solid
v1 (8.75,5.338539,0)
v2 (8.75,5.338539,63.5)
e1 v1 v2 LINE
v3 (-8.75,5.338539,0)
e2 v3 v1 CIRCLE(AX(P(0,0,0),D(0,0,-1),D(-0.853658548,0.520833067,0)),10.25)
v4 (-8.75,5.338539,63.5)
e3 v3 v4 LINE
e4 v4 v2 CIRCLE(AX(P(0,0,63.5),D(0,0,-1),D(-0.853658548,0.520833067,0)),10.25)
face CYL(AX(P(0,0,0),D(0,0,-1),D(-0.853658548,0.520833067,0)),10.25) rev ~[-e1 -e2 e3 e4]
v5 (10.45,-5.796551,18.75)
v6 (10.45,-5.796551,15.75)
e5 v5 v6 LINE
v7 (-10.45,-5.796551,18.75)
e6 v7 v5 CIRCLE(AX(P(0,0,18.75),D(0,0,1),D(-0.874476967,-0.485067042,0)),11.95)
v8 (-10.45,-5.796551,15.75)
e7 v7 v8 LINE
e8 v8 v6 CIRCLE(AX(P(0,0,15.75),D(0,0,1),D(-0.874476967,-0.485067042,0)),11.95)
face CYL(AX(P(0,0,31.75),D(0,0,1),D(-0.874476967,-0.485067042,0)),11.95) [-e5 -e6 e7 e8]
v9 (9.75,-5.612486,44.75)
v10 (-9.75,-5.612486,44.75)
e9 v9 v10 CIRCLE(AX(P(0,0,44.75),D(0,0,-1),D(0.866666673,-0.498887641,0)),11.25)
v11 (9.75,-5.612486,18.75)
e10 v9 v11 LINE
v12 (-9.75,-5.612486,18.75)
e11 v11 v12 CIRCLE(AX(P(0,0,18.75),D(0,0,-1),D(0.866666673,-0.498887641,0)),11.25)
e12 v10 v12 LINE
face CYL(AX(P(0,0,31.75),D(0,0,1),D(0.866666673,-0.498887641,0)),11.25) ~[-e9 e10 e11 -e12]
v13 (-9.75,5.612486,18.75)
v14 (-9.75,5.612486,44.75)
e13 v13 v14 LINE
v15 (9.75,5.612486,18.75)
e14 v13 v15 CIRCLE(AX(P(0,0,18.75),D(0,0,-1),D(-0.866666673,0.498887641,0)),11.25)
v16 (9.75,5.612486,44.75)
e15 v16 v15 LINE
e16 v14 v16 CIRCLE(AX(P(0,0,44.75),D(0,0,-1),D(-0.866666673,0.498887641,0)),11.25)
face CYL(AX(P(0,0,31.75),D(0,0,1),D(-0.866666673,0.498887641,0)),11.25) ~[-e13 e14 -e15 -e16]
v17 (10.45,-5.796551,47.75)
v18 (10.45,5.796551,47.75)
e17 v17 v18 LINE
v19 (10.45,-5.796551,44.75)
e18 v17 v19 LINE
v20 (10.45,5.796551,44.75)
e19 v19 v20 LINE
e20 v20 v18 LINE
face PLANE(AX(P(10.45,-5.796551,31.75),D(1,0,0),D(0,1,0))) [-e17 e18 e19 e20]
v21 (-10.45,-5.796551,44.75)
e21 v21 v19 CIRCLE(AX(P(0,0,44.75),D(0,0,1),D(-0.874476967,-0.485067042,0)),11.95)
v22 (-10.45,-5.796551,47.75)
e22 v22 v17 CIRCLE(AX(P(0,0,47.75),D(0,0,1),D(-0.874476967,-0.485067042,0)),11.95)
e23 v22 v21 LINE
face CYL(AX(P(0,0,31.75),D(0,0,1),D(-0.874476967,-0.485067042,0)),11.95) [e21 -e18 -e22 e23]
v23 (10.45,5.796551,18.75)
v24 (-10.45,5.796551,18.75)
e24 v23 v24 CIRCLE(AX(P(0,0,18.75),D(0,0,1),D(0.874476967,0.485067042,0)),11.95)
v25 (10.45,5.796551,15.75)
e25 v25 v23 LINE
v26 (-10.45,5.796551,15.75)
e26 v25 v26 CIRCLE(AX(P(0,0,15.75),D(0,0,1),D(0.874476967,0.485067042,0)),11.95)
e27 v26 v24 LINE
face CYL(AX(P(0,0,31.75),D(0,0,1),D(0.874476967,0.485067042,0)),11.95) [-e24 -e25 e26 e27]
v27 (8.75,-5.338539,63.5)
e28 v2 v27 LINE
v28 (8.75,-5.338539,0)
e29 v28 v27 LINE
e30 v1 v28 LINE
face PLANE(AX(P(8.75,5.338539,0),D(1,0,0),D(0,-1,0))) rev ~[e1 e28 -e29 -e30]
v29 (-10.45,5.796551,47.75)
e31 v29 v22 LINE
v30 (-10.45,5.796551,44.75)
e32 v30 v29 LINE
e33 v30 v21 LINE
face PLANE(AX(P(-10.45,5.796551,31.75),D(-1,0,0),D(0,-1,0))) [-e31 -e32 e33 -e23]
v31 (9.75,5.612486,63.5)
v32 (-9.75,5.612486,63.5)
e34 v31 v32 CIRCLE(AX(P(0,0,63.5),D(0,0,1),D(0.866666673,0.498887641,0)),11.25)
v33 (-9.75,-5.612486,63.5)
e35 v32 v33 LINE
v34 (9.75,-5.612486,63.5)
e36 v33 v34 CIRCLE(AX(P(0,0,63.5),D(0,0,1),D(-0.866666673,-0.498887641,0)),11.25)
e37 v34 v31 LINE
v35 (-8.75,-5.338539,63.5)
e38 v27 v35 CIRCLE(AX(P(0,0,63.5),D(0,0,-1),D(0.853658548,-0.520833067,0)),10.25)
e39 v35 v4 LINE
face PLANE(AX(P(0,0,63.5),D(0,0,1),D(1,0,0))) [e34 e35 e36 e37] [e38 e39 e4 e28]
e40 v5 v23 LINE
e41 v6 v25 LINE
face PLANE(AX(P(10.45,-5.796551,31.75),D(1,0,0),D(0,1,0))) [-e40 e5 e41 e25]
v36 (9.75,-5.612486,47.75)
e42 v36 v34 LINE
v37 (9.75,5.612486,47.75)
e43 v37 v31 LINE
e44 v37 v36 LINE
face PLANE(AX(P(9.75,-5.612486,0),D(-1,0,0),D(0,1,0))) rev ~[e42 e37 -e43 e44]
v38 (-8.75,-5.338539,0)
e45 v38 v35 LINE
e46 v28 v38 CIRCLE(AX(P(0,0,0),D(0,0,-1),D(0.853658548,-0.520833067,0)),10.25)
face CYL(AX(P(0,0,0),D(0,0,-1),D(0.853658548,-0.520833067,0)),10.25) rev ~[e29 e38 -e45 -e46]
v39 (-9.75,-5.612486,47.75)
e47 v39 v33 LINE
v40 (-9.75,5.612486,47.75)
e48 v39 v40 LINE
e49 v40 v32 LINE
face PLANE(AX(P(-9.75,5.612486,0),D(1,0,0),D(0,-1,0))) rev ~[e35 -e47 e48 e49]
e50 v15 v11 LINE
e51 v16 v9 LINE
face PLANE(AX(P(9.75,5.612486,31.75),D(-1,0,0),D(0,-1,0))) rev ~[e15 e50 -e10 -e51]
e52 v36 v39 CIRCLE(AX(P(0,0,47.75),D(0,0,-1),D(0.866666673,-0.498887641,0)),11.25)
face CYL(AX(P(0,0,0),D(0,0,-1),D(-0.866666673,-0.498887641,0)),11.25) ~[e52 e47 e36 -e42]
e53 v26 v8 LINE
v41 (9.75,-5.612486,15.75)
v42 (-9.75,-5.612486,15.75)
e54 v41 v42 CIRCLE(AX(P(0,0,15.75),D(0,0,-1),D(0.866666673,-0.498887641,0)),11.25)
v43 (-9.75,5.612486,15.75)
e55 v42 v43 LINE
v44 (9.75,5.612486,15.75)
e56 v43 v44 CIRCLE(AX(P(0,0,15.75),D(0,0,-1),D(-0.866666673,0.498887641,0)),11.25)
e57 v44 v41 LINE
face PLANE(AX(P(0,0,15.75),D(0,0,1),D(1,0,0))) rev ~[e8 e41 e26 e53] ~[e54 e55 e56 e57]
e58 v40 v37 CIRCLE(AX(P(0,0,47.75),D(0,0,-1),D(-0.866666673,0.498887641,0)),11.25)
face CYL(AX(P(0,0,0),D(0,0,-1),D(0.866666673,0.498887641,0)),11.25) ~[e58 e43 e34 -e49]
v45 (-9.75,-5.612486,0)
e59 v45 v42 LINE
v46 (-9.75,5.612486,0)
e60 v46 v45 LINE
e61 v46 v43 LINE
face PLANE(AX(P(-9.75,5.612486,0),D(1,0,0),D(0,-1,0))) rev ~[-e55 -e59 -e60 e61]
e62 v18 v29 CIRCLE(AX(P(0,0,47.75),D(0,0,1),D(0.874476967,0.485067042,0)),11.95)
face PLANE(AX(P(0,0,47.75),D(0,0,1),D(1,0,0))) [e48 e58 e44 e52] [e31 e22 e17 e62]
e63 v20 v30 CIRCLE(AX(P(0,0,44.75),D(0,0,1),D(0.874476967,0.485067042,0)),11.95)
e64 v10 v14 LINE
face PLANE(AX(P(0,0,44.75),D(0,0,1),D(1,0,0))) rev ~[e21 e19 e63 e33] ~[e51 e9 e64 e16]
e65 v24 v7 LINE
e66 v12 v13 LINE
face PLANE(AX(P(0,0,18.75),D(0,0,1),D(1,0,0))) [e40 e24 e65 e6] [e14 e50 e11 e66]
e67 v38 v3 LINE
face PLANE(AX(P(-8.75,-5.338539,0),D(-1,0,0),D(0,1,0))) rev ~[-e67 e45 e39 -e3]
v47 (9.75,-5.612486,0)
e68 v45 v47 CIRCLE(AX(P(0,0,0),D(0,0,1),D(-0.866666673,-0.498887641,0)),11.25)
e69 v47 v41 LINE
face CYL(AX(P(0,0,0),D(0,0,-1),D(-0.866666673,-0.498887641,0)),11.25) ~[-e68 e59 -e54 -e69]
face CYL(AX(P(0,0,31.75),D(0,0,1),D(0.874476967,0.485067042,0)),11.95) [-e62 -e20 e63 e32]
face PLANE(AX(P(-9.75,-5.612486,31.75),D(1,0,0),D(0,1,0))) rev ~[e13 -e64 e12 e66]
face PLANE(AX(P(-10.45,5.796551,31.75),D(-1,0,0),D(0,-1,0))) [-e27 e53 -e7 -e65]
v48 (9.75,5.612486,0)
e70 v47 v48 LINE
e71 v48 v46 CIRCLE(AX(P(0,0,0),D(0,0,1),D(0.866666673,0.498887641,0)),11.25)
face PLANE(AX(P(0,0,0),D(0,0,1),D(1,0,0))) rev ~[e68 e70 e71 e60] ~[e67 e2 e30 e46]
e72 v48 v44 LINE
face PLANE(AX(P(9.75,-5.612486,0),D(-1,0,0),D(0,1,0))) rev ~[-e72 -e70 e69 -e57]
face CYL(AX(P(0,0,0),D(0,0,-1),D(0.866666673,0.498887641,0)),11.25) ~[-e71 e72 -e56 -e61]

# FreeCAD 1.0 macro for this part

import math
import FreeCAD as App
import Part
import Sketcher

doc = App.newDocument("Part")
body = doc.addObject("PartDesign::Body", "Body")

# Sketch on XY plane
sketch1 = body.newObject("Sketcher::SketchObject", "Sketch")
sketch1.AttachmentSupport = (doc.getObject("XY_Plane"), [""])
sketch1.MapMode = "FlatFace"
sketch1.addGeometry([
    Part.LineSegment(App.Vector(-10, 6, 0), App.Vector(-10, -6, 0)),  # 0
    Part.ArcOfCircle(Part.Circle(App.Vector(0, 0, 0), App.Vector(0, 0, 1), 11), math.radians(-150), math.radians(-30)),  # 1
    Part.LineSegment(App.Vector(10, -6, 0), App.Vector(10, 6, 0)),  # 2
    Part.ArcOfCircle(Part.Circle(App.Vector(0, 0, 0), App.Vector(0, 0, 1), 11), math.radians(30), math.radians(150)),  # 3
    Part.LineSegment(App.Vector(9, 5, 0), App.Vector(9, -5, 0)),  # 4
    Part.ArcOfCircle(Part.Circle(App.Vector(0, 0, 0), App.Vector(0, 0, 1), 10), math.radians(-149), math.radians(-31)),  # 5
    Part.LineSegment(App.Vector(-9, -5, 0), App.Vector(-9, 5, 0)),  # 6
    Part.ArcOfCircle(Part.Circle(App.Vector(0, 0, 0), App.Vector(0, 0, 1), 10), math.radians(31), math.radians(149)),  # 7
], False)
sketch1.addConstraint([
    Sketcher.Constraint("Coincident", 0, 2, 1, 1),
    Sketcher.Constraint("Coincident", 1, 2, 2, 1),
    Sketcher.Constraint("Coincident", 2, 2, 3, 1),
    Sketcher.Constraint("Coincident", 3, 2, 0, 1),
    Sketcher.Constraint("Coincident", 4, 2, 5, 2),
    Sketcher.Constraint("Coincident", 5, 1, 6, 1),
    Sketcher.Constraint("Coincident", 6, 2, 7, 2),
    Sketcher.Constraint("Coincident", 7, 1, 4, 1),
    Sketcher.Constraint("Vertical", 0),
    Sketcher.Constraint("Vertical", 2),
    Sketcher.Constraint("Vertical", 4),
    Sketcher.Constraint("Vertical", 6),
    Sketcher.Constraint("Coincident", 1, 3, -1, 1),
    Sketcher.Constraint("Coincident", 3, 3, -1, 1),
    Sketcher.Constraint("Coincident", 5, 3, -1, 1),
    Sketcher.Constraint("Coincident", 7, 3, -1, 1),
    Sketcher.Constraint("Equal", 1, 3),
    Sketcher.Constraint("Equal", 5, 7),
    Sketcher.Constraint("Horizontal", 0, 2, 1, 2),
    Sketcher.Constraint("Horizontal", 4, 2, 5, 1),
    Sketcher.Constraint("Radius", 1, 11.25),
    Sketcher.Constraint("Radius", 5, 10.25),
    Sketcher.Constraint("DistanceX", 4, 2, 1, 2, 1.0),
    Sketcher.Constraint("DistanceX", 0, 2, 1, 2, 19.5),
])
pad1 = body.newObject("PartDesign::Pad", "Pad")
pad1.Profile = sketch1
pad1.Length = 63.5

# Sketch on XY plane
sketch2 = body.newObject("Sketcher::SketchObject", "Sketch001")
sketch2.AttachmentSupport = (doc.getObject("XY_Plane"), [""])
sketch2.MapMode = "FlatFace"
sketch2.AttachmentOffset = App.Placement(App.Vector(0, 0, 31.75), App.Rotation())
sketch2.addGeometry([
    Part.LineSegment(App.Vector(10, -6, 0), App.Vector(10, 6, 0)),  # 0
    Part.ArcOfCircle(Part.Circle(App.Vector(0, 0, 0), App.Vector(0, 0, 1), 12), math.radians(29), math.radians(151)),  # 1
    Part.LineSegment(App.Vector(-10, 6, 0), App.Vector(-10, -6, 0)),  # 2
    Part.ArcOfCircle(Part.Circle(App.Vector(0, 0, 0), App.Vector(0, 0, 1), 12), math.radians(-151), math.radians(-29)),  # 3
    Part.LineSegment(App.Vector(-10, -6, 0), App.Vector(-10, 6, 0)),  # 4
    Part.ArcOfCircle(Part.Circle(App.Vector(0, 0, 0), App.Vector(0, 0, 1), 11), math.radians(30), math.radians(150)),  # 5
    Part.LineSegment(App.Vector(10, 6, 0), App.Vector(10, -6, 0)),  # 6
    Part.ArcOfCircle(Part.Circle(App.Vector(0, 0, 0), App.Vector(0, 0, 1), 11), math.radians(-150), math.radians(-30)),  # 7
], False)
sketch2.addConstraint([
    Sketcher.Constraint("Coincident", 0, 2, 1, 1),
    Sketcher.Constraint("Coincident", 1, 2, 2, 1),
    Sketcher.Constraint("Coincident", 2, 2, 3, 1),
    Sketcher.Constraint("Coincident", 3, 2, 0, 1),
    Sketcher.Constraint("Coincident", 4, 2, 5, 2),
    Sketcher.Constraint("Coincident", 5, 1, 6, 1),
    Sketcher.Constraint("Coincident", 6, 2, 7, 2),
    Sketcher.Constraint("Coincident", 7, 1, 4, 1),
    Sketcher.Constraint("Vertical", 0),
    Sketcher.Constraint("Vertical", 2),
    Sketcher.Constraint("Vertical", 4),
    Sketcher.Constraint("Vertical", 6),
    Sketcher.Constraint("Coincident", 1, 3, -1, 1),
    Sketcher.Constraint("Coincident", 3, 3, -1, 1),
    Sketcher.Constraint("Coincident", 5, 3, -1, 1),
    Sketcher.Constraint("Coincident", 7, 3, -1, 1),
    Sketcher.Constraint("Equal", 1, 3),
    Sketcher.Constraint("Equal", 5, 7),
    Sketcher.Constraint("Horizontal", 0, 2, 1, 2),
    Sketcher.Constraint("Horizontal", 4, 2, 5, 1),
    Sketcher.Constraint("Radius", 1, 11.95),
    Sketcher.Constraint("Radius", 5, 11.25),
    Sketcher.Constraint("DistanceX", 1, 2, 0, 2, 20.9),
    Sketcher.Constraint("DistanceX", 1, 2, 4, 2, 0.7),
])
pad2 = body.newObject("PartDesign::Pad", "Pad001")
pad2.Profile = sketch2
pad2.Length = 32
pad2.Midplane = True

# Sketch on XY plane
sketch3 = body.newObject("Sketcher::SketchObject", "Sketch002")
sketch3.AttachmentSupport = (doc.getObject("XY_Plane"), [""])
sketch3.MapMode = "FlatFace"
sketch3.AttachmentOffset = App.Placement(App.Vector(0, 0, 31.75), App.Rotation())
sketch3.addGeometry([
    Part.LineSegment(App.Vector(10, -6, 0), App.Vector(10, 6, 0)),  # 0
    Part.ArcOfCircle(Part.Circle(App.Vector(0, 0, 0), App.Vector(0, 0, 1), 12), math.radians(29), math.radians(151)),  # 1
    Part.LineSegment(App.Vector(-10, 6, 0), App.Vector(-10, -6, 0)),  # 2
    Part.ArcOfCircle(Part.Circle(App.Vector(0, 0, 0), App.Vector(0, 0, 1), 12), math.radians(-151), math.radians(-29)),  # 3
    Part.LineSegment(App.Vector(-10, -6, 0), App.Vector(-10, 6, 0)),  # 4
    Part.ArcOfCircle(Part.Circle(App.Vector(0, 0, 0), App.Vector(0, 0, 1), 11), math.radians(30), math.radians(150)),  # 5
    Part.LineSegment(App.Vector(10, 6, 0), App.Vector(10, -6, 0)),  # 6
    Part.ArcOfCircle(Part.Circle(App.Vector(0, 0, 0), App.Vector(0, 0, 1), 11), math.radians(-150), math.radians(-30)),  # 7
], False)
sketch3.addConstraint([
    Sketcher.Constraint("Coincident", 0, 2, 1, 1),
    Sketcher.Constraint("Coincident", 1, 2, 2, 1),
    Sketcher.Constraint("Coincident", 2, 2, 3, 1),
    Sketcher.Constraint("Coincident", 3, 2, 0, 1),
    Sketcher.Constraint("Coincident", 4, 2, 5, 2),
    Sketcher.Constraint("Coincident", 5, 1, 6, 1),
    Sketcher.Constraint("Coincident", 6, 2, 7, 2),
    Sketcher.Constraint("Coincident", 7, 1, 4, 1),
    Sketcher.Constraint("Vertical", 0),
    Sketcher.Constraint("Vertical", 2),
    Sketcher.Constraint("Vertical", 4),
    Sketcher.Constraint("Vertical", 6),
    Sketcher.Constraint("Coincident", 1, 3, -1, 1),
    Sketcher.Constraint("Coincident", 3, 3, -1, 1),
    Sketcher.Constraint("Coincident", 5, 3, -1, 1),
    Sketcher.Constraint("Coincident", 7, 3, -1, 1),
    Sketcher.Constraint("Equal", 1, 3),
    Sketcher.Constraint("Equal", 5, 7),
    Sketcher.Constraint("Horizontal", 0, 2, 1, 2),
    Sketcher.Constraint("Horizontal", 4, 2, 5, 1),
    Sketcher.Constraint("Radius", 1, 11.95),
    Sketcher.Constraint("Radius", 5, 11.25),
    Sketcher.Constraint("DistanceX", 1, 2, 0, 2, 20.9),
    Sketcher.Constraint("DistanceX", 1, 2, 4, 2, 0.7),
])
pocket1 = body.newObject("PartDesign::Pocket", "Pocket")
pocket1.Profile = sketch3
pocket1.Length = 26
pocket1.Midplane = True

doc.recompute()
